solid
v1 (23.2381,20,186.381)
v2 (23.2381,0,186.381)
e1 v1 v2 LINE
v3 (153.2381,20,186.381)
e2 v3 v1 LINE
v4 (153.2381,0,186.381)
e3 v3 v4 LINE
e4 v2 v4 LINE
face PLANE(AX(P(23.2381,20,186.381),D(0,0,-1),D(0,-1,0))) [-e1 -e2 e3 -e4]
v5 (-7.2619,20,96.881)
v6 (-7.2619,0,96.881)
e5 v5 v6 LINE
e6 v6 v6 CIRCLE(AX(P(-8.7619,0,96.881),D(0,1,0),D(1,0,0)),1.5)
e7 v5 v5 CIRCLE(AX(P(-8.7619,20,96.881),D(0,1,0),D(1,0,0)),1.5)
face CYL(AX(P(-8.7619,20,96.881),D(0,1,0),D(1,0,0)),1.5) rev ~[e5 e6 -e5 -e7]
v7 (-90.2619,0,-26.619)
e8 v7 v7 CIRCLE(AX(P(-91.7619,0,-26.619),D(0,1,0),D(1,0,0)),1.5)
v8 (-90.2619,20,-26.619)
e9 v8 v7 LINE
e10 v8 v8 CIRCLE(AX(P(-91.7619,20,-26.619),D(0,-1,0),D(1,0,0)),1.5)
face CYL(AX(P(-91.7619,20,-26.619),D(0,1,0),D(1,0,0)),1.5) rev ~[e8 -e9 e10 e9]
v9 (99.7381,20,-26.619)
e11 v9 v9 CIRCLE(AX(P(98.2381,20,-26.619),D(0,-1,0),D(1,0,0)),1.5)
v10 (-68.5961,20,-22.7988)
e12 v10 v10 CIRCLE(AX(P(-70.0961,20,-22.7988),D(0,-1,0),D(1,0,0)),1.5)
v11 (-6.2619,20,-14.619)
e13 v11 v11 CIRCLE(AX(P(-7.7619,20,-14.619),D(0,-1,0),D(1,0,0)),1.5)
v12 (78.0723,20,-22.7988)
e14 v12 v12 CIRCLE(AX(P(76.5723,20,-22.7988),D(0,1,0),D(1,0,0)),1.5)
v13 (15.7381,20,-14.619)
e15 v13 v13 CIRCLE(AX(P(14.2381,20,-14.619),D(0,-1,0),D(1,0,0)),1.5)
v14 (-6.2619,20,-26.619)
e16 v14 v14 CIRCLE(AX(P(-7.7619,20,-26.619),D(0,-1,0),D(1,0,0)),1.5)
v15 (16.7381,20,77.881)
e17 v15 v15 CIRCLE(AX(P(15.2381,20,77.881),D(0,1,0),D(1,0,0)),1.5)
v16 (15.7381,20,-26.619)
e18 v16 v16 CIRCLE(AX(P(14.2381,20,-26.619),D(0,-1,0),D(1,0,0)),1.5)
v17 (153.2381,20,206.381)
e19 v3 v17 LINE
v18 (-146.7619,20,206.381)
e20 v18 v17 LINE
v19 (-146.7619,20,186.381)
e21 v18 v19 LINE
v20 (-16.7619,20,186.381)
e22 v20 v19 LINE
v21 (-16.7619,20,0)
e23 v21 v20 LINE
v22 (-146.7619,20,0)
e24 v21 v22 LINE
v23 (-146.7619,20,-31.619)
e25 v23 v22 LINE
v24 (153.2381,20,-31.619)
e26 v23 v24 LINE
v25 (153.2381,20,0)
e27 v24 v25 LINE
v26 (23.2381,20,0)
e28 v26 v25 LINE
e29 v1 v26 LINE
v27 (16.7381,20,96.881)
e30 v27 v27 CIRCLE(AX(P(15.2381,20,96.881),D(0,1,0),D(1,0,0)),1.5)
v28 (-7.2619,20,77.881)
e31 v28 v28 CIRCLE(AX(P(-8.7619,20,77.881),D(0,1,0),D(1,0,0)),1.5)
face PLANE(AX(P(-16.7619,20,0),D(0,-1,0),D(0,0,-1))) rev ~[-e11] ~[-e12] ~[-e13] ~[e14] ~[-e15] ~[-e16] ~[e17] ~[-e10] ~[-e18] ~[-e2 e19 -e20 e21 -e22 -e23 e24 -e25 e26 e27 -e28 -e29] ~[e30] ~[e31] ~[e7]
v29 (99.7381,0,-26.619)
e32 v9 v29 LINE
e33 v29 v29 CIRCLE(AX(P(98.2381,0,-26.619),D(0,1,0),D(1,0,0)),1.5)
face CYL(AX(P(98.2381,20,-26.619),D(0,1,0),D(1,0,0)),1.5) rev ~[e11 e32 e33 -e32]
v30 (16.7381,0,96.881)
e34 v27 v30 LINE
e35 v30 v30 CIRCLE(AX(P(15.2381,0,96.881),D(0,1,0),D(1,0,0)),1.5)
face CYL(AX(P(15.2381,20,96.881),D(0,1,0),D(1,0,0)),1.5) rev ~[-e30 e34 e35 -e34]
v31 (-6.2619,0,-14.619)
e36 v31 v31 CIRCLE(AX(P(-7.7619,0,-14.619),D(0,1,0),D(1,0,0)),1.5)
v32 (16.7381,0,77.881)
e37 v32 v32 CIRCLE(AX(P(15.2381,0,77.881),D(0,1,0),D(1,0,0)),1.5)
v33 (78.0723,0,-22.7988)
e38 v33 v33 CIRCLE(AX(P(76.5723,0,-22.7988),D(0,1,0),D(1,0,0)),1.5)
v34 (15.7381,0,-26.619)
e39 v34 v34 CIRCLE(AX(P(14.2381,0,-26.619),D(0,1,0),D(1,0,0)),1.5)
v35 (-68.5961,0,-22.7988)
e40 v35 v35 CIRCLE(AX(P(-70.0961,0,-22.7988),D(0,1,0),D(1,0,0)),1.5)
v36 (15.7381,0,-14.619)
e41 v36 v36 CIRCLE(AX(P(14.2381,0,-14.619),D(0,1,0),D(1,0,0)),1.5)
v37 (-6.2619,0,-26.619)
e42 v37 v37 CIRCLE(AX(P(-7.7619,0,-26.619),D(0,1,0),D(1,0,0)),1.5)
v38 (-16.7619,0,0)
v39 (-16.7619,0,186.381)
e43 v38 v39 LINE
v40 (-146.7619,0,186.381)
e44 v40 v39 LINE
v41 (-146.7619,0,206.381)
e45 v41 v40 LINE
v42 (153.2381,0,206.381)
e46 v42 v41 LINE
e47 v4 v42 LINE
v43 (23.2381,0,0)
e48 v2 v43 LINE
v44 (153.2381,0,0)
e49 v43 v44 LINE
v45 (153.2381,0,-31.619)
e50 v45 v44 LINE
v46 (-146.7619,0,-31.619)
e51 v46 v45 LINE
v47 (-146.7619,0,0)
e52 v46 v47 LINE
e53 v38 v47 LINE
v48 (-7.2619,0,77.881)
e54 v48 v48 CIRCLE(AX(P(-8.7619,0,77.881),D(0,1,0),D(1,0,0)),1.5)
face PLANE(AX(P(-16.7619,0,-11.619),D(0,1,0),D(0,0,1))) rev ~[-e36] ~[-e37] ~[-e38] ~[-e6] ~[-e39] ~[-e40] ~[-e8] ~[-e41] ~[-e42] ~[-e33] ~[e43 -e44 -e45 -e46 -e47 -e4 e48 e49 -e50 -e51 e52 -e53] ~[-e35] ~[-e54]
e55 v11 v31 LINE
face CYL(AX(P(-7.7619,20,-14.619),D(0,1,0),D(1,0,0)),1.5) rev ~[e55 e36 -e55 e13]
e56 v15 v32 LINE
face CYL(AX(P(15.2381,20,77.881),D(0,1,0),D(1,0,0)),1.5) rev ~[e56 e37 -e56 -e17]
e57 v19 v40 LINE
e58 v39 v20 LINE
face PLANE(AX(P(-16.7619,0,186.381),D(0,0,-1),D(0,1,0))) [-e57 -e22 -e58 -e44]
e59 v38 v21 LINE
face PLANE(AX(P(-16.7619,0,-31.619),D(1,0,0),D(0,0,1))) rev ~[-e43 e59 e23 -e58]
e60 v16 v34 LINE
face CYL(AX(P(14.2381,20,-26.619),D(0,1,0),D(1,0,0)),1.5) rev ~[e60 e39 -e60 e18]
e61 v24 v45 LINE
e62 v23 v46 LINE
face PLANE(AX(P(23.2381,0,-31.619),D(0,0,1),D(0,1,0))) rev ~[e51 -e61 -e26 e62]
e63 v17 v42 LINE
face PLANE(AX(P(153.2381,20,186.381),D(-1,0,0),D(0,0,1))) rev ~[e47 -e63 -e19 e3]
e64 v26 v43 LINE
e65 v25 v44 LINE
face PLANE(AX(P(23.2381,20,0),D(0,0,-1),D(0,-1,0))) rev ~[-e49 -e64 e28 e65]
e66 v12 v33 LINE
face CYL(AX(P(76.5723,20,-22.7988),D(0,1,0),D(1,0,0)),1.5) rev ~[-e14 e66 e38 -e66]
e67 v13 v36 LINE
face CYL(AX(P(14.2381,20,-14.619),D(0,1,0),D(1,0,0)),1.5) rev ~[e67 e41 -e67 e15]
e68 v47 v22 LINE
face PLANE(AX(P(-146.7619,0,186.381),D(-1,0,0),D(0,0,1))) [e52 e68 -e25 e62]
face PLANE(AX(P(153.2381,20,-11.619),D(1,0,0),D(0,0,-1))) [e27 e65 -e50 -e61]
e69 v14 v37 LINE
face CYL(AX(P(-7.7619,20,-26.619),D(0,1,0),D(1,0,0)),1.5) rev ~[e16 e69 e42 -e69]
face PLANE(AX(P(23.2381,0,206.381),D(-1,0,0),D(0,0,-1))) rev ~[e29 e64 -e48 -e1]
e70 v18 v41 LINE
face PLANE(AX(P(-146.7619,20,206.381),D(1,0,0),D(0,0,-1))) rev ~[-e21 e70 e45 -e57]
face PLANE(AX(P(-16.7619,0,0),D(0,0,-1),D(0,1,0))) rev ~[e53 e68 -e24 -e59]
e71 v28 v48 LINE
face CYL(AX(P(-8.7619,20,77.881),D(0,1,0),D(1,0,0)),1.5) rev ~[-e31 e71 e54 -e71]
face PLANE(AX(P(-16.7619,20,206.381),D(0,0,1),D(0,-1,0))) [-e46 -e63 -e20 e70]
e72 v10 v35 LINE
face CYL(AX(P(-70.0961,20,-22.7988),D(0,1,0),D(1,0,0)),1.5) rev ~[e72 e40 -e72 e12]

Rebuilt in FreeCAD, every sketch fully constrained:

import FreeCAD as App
import Part
import Sketcher


def add_polygon(sketch, points):
    """Adds a closed chain of lines whose ends are joined by coincident constraints."""
    first, n = sketch.GeometryCount, len(points)
    for a, b in zip(points, points[1:] + points[:1]):
        sketch.addGeometry(Part.LineSegment(App.Vector(*a, 0), App.Vector(*b, 0)), False)
    for i in range(n):
        sketch.addConstraint(Sketcher.Constraint("Coincident", first + i, 2, first + (i + 1) % n, 1))

doc = App.newDocument("Part")
body = doc.addObject("PartDesign::Body", "Body")

sketch1 = body.newObject("Sketcher::SketchObject", "Sketch")
sketch1.AttachmentSupport = (doc.getObject("XZ_Plane"), [""])
sketch1.MapMode = "FlatFace"
add_polygon(sketch1, [(-16.7619, -31.619), (-16.7619, 206.381), (23.2381, 206.381), (23.2381, -31.619)])
sketch1.addConstraint(Sketcher.Constraint("Vertical", 0))
sketch1.addConstraint(Sketcher.Constraint("Horizontal", 1))
sketch1.addConstraint(Sketcher.Constraint("Vertical", 2))
sketch1.addConstraint(Sketcher.Constraint("Horizontal", 3))
sketch1.addConstraint(Sketcher.Constraint("DistanceX", 1, 1, 1, 2, 40.0))
sketch1.addConstraint(Sketcher.Constraint("DistanceY", 0, 1, 0, 2, 238.0))
sketch1.addConstraint(Sketcher.Constraint("DistanceX", 0, 2, -1, 1, 16.762))
sketch1.addConstraint(Sketcher.Constraint("DistanceY", -1, 1, 0, 2, 206.381))
pad1 = body.newObject("PartDesign::Pad", "Pad")
pad1.Profile = sketch1
pad1.Length = 20
pad1.Reversed = True

sketch2 = body.newObject("Sketcher::SketchObject", "Sketch001")
sketch2.AttachmentSupport = (doc.getObject("YZ_Plane"), [""])
sketch2.MapMode = "FlatFace"
sketch2.AttachmentOffset = App.Placement(App.Vector(0, 0, 23.2381), App.Rotation())
add_polygon(sketch2, [(0, 186.381), (20, 186.381), (20, 206.381), (0, 206.381)])
sketch2.addConstraint(Sketcher.Constraint("Horizontal", 0))
sketch2.addConstraint(Sketcher.Constraint("Vertical", 1))
sketch2.addConstraint(Sketcher.Constraint("Horizontal", 2))
sketch2.addConstraint(Sketcher.Constraint("Vertical", 3))
sketch2.addConstraint(Sketcher.Constraint("PointOnObject", 2, 2, -2))
sketch2.addConstraint(Sketcher.Constraint("Equal", 2, 1))
sketch2.addConstraint(Sketcher.Constraint("DistanceX", 0, 1, 0, 2, 20.0))
sketch2.addConstraint(Sketcher.Constraint("DistanceY", -1, 1, 0, 2, 186.381))
pad2 = body.newObject("PartDesign::Pad", "Pad001")
pad2.Profile = sketch2
pad2.Length = 20

sketch3 = body.newObject("Sketcher::SketchObject", "Sketch002")
sketch3.AttachmentSupport = (doc.getObject("YZ_Plane"), [""])
sketch3.MapMode = "FlatFace"
sketch3.AttachmentOffset = App.Placement(App.Vector(0, 0, -16.7619), App.Rotation())
add_polygon(sketch3, [(20, 186.381), (0, 186.381), (0, 206.381), (20, 206.381)])
sketch3.addConstraint(Sketcher.Constraint("Horizontal", 0))
sketch3.addConstraint(Sketcher.Constraint("Vertical", 1))
sketch3.addConstraint(Sketcher.Constraint("Horizontal", 2))
sketch3.addConstraint(Sketcher.Constraint("Vertical", 3))
sketch3.addConstraint(Sketcher.Constraint("PointOnObject", 0, 2, -2))
sketch3.addConstraint(Sketcher.Constraint("Equal", 2, 1))
sketch3.addConstraint(Sketcher.Constraint("DistanceX", 0, 2, 0, 1, 20.0))
sketch3.addConstraint(Sketcher.Constraint("DistanceY", -1, 1, 0, 2, 186.381))
pad3 = body.newObject("PartDesign::Pad", "Pad002")
pad3.Profile = sketch3
pad3.Length = 20
pad3.Reversed = True

sketch4 = body.newObject("Sketcher::SketchObject", "Sketch003")
sketch4.AttachmentSupport = (doc.getObject("YZ_Plane"), [""])
sketch4.MapMode = "FlatFace"
sketch4.AttachmentOffset = App.Placement(App.Vector(0, 0, -16.7619), App.Rotation())
add_polygon(sketch4, [(20, -31.619), (0, -31.619), (0, -11.619), (20, -11.619)])
sketch4.addConstraint(Sketcher.Constraint("Horizontal", 0))
sketch4.addConstraint(Sketcher.Constraint("Vertical", 1))
sketch4.addConstraint(Sketcher.Constraint("Horizontal", 2))
sketch4.addConstraint(Sketcher.Constraint("Vertical", 3))
sketch4.addConstraint(Sketcher.Constraint("PointOnObject", 0, 2, -2))
sketch4.addConstraint(Sketcher.Constraint("Equal", 2, 1))
sketch4.addConstraint(Sketcher.Constraint("DistanceX", 0, 2, 0, 1, 20.0))
sketch4.addConstraint(Sketcher.Constraint("DistanceY", 0, 2, -1, 1, 31.619))
pad4 = body.newObject("PartDesign::Pad", "Pad003")
pad4.Profile = sketch4
pad4.Length = 20
pad4.Reversed = True

sketch5 = body.newObject("Sketcher::SketchObject", "Sketch004")
sketch5.AttachmentSupport = (doc.getObject("YZ_Plane"), [""])
sketch5.MapMode = "FlatFace"
sketch5.AttachmentOffset = App.Placement(App.Vector(0, 0, 23.2381), App.Rotation())
add_polygon(sketch5, [(0, -11.619), (0, -31.619), (20, -31.619), (20, -11.619)])
sketch5.addConstraint(Sketcher.Constraint("Vertical", 0))
sketch5.addConstraint(Sketcher.Constraint("Horizontal", 1))
sketch5.addConstraint(Sketcher.Constraint("Vertical", 2))
sketch5.addConstraint(Sketcher.Constraint("Horizontal", 3))
sketch5.addConstraint(Sketcher.Constraint("PointOnObject", 0, 2, -2))
sketch5.addConstraint(Sketcher.Constraint("Equal", 3, 0))
sketch5.addConstraint(Sketcher.Constraint("DistanceX", 1, 1, 1, 2, 20.0))
sketch5.addConstraint(Sketcher.Constraint("DistanceY", 0, 2, -1, 1, 31.619))
pad5 = body.newObject("PartDesign::Pad", "Pad004")
pad5.Profile = sketch5
pad5.Length = 20

sketch6 = body.newObject("Sketcher::SketchObject", "Sketch005")
sketch6.AttachmentSupport = (doc.getObject("XZ_Plane"), [""])
sketch6.MapMode = "FlatFace"
sketch6.AttachmentOffset = App.Placement(App.Vector(0, 0, -20), App.Rotation())
sketch6.addGeometry(Part.Circle(App.Vector(-8.7619, 96.881, 0), App.Vector(0, 0, 1), 1.5), False)
sketch6.addGeometry(Part.Circle(App.Vector(-8.7619, 77.881, 0), App.Vector(0, 0, 1), 1.5), False)
sketch6.addGeometry(Part.Circle(App.Vector(15.2381, 96.881, 0), App.Vector(0, 0, 1), 1.5), False)
sketch6.addGeometry(Part.Circle(App.Vector(15.2381, 77.881, 0), App.Vector(0, 0, 1), 1.5), False)
sketch6.addConstraint(Sketcher.Constraint("Equal", 0, 1))
sketch6.addConstraint(Sketcher.Constraint("Equal", 1, 2))
sketch6.addConstraint(Sketcher.Constraint("Equal", 2, 3))
sketch6.addConstraint(Sketcher.Constraint("Horizontal", 0, 3, 2, 3))
sketch6.addConstraint(Sketcher.Constraint("Horizontal", 1, 3, 3, 3))
sketch6.addConstraint(Sketcher.Constraint("Vertical", 0, 3, 1, 3))
sketch6.addConstraint(Sketcher.Constraint("Vertical", 2, 3, 3, 3))
sketch6.addConstraint(Sketcher.Constraint("Diameter", 0, 3.0))
sketch6.addConstraint(Sketcher.Constraint("DistanceY", 1, 3, 0, 3, 19.0))
sketch6.addConstraint(Sketcher.Constraint("DistanceX", 0, 3, 2, 3, 24.0))
sketch6.addConstraint(Sketcher.Constraint("DistanceX", 0, 3, -1, 1, 8.762))
sketch6.addConstraint(Sketcher.Constraint("DistanceY", -1, 1, 0, 3, 96.881))
pocket1 = body.newObject("PartDesign::Pocket", "Pocket")
pocket1.Profile = sketch6
pocket1.Type = "ThroughAll"
pocket1.Reversed = True

sketch7 = body.newObject("Sketcher::SketchObject", "Sketch006")
sketch7.AttachmentSupport = (doc.getObject("XZ_Plane"), [""])
sketch7.MapMode = "FlatFace"
sketch7.AttachmentOffset = App.Placement(App.Vector(0, 0, -20), App.Rotation())
add_polygon(sketch7, [(153.2381, 186.381), (-146.7619, 186.381), (-146.7619, 206.381), (153.2381, 206.381)])
add_polygon(sketch7, [(-146.7619, -31.619), (-146.7619, -11.619), (153.2381, -11.619), (153.2381, -31.619)])
sketch7.addConstraint(Sketcher.Constraint("Horizontal", 0))
sketch7.addConstraint(Sketcher.Constraint("Vertical", 1))
sketch7.addConstraint(Sketcher.Constraint("Horizontal", 2))
sketch7.addConstraint(Sketcher.Constraint("Vertical", 3))
sketch7.addConstraint(Sketcher.Constraint("Vertical", 4))
sketch7.addConstraint(Sketcher.Constraint("Horizontal", 5))
sketch7.addConstraint(Sketcher.Constraint("Vertical", 6))
sketch7.addConstraint(Sketcher.Constraint("Horizontal", 7))
sketch7.addConstraint(Sketcher.Constraint("Vertical", 1, 2, 4, 2))
sketch7.addConstraint(Sketcher.Constraint("Vertical", 3, 2, 5, 2))
sketch7.addConstraint(Sketcher.Constraint("Equal", 3, 4))
sketch7.addConstraint(Sketcher.Constraint("DistanceX", 0, 2, 0, 1, 300.0))
sketch7.addConstraint(Sketcher.Constraint("DistanceY", 1, 1, 1, 2, 20.0))
sketch7.addConstraint(Sketcher.Constraint("DistanceY", 4, 2, 0, 2, 198.0))
sketch7.addConstraint(Sketcher.Constraint("DistanceX", 0, 2, -1, 1, 146.762))
sketch7.addConstraint(Sketcher.Constraint("DistanceY", -1, 1, 0, 2, 186.381))
pad6 = body.newObject("PartDesign::Pad", "Pad005")
pad6.Profile = sketch7
pad6.Length = 20

sketch8 = body.newObject("Sketcher::SketchObject", "Sketch007")
sketch8.AttachmentSupport = (doc.getObject("XZ_Plane"), [""])
sketch8.MapMode = "FlatFace"
sketch8.AttachmentOffset = App.Placement(App.Vector(0, 0, -20), App.Rotation())
sketch8.addGeometry(Part.Circle(App.Vector(14.2381, -14.619, 0), App.Vector(0, 0, 1), 1.5), False)
sketch8.addGeometry(Part.Circle(App.Vector(14.2381, -26.619, 0), App.Vector(0, 0, 1), 1.5), False)
sketch8.addGeometry(Part.Circle(App.Vector(-7.7619, -14.619, 0), App.Vector(0, 0, 1), 1.5), False)
sketch8.addGeometry(Part.Circle(App.Vector(-7.7619, -26.619, 0), App.Vector(0, 0, 1), 1.5), False)
sketch8.addConstraint(Sketcher.Constraint("Equal", 0, 1))
sketch8.addConstraint(Sketcher.Constraint("Equal", 1, 2))
sketch8.addConstraint(Sketcher.Constraint("Equal", 2, 3))
sketch8.addConstraint(Sketcher.Constraint("Horizontal", 0, 3, 2, 3))
sketch8.addConstraint(Sketcher.Constraint("Horizontal", 1, 3, 3, 3))
sketch8.addConstraint(Sketcher.Constraint("Vertical", 0, 3, 1, 3))
sketch8.addConstraint(Sketcher.Constraint("Vertical", 2, 3, 3, 3))
sketch8.addConstraint(Sketcher.Constraint("Diameter", 0, 3.0))
sketch8.addConstraint(Sketcher.Constraint("DistanceY", 1, 3, 0, 3, 12.0))
sketch8.addConstraint(Sketcher.Constraint("DistanceX", 2, 3, 0, 3, 22.0))
sketch8.addConstraint(Sketcher.Constraint("DistanceX", -1, 1, 0, 3, 14.238))
sketch8.addConstraint(Sketcher.Constraint("DistanceY", 0, 3, -1, 1, 14.619))
pocket2 = body.newObject("PartDesign::Pocket", "Pocket001")
pocket2.Profile = sketch8
pocket2.Type = "ThroughAll"
pocket2.Reversed = True

sketch9 = body.newObject("Sketcher::SketchObject", "Sketch008")
sketch9.AttachmentSupport = (doc.getObject("XZ_Plane"), [""])
sketch9.MapMode = "FlatFace"
sketch9.AttachmentOffset = App.Placement(App.Vector(0, 0, -20), App.Rotation())
sketch9.addGeometry(Part.Circle(App.Vector(-91.7619, -26.619, 0), App.Vector(0, 0, 1), 1.5), False)
sketch9.addGeometry(Part.Circle(App.Vector(-70.0961, -22.7988, 0), App.Vector(0, 0, 1), 1.5), False)
sketch9.addGeometry(Part.Circle(App.Vector(98.2381, -26.619, 0), App.Vector(0, 0, 1), 1.5), False)
sketch9.addGeometry(Part.Circle(App.Vector(76.5723, -22.7988, 0), App.Vector(0, 0, 1), 1.5), False)
sketch9.addConstraint(Sketcher.Constraint("Equal", 0, 1))
sketch9.addConstraint(Sketcher.Constraint("Equal", 1, 2))
sketch9.addConstraint(Sketcher.Constraint("Equal", 2, 3))
sketch9.addConstraint(Sketcher.Constraint("Horizontal", 0, 3, 2, 3))
sketch9.addConstraint(Sketcher.Constraint("Horizontal", 1, 3, 3, 3))
sketch9.addConstraint(Sketcher.Constraint("Diameter", 0, 3.0))
sketch9.addConstraint(Sketcher.Constraint("DistanceX", 0, 3, 2, 3, 190.0))
sketch9.addConstraint(Sketcher.Constraint("DistanceX", 0, 3, -1, 1, 91.762))
sketch9.addConstraint(Sketcher.Constraint("DistanceY", 0, 3, -1, 1, 26.619))
sketch9.addConstraint(Sketcher.Constraint("DistanceX", 1, 3, -1, 1, 70.096))
sketch9.addConstraint(Sketcher.Constraint("DistanceY", 1, 3, -1, 1, 22.7988))
sketch9.addConstraint(Sketcher.Constraint("DistanceX", -1, 1, 3, 3, 76.5723))
pocket3 = body.newObject("PartDesign::Pocket", "Pocket002")
pocket3.Profile = sketch9
pocket3.Type = "ThroughAll"
pocket3.Reversed = True

sketch10 = body.newObject("Sketcher::SketchObject", "Sketch009")
sketch10.AttachmentSupport = (doc.getObject("YZ_Plane"), [""])
sketch10.MapMode = "FlatFace"
sketch10.AttachmentOffset = App.Placement(App.Vector(0, 0, 23.2381), App.Rotation())
add_polygon(sketch10, [(20, -11.619), (20, 0), (0, 0), (0, -11.619)])
sketch10.addConstraint(Sketcher.Constraint("Vertical", 0))
sketch10.addConstraint(Sketcher.Constraint("Horizontal", 1))
sketch10.addConstraint(Sketcher.Constraint("Vertical", 2))
sketch10.addConstraint(Sketcher.Constraint("Horizontal", 3))
sketch10.addConstraint(Sketcher.Constraint("Coincident", 1, 2, -1, 1))
sketch10.addConstraint(Sketcher.Constraint("DistanceX", 1, 2, 1, 1, 20.0))
sketch10.addConstraint(Sketcher.Constraint("DistanceY", 0, 1, 0, 2, 11.619))
pad7 = body.newObject("PartDesign::Pad", "Pad006")
pad7.Profile = sketch10
pad7.Type = "TwoLengths"
pad7.Length = 130
pad7.Length2 = 5

sketch11 = body.newObject("Sketcher::SketchObject", "Sketch010")
sketch11.AttachmentSupport = (doc.getObject("YZ_Plane"), [""])
sketch11.MapMode = "FlatFace"
sketch11.AttachmentOffset = App.Placement(App.Vector(0, 0, -16.7619), App.Rotation())
add_polygon(sketch11, [(20, 0), (20, -11.619), (0, -11.619), (0, 0)])
sketch11.addConstraint(Sketcher.Constraint("Vertical", 0))
sketch11.addConstraint(Sketcher.Constraint("Horizontal", 1))
sketch11.addConstraint(Sketcher.Constraint("Vertical", 2))
sketch11.addConstraint(Sketcher.Constraint("Horizontal", 3))
sketch11.addConstraint(Sketcher.Constraint("Coincident", 2, 2, -1, 1))
sketch11.addConstraint(Sketcher.Constraint("DistanceX", 1, 2, 1, 1, 20.0))
sketch11.addConstraint(Sketcher.Constraint("DistanceY", 0, 2, 0, 1, 11.619))
pad8 = body.newObject("PartDesign::Pad", "Pad007")
pad8.Profile = sketch11
pad8.Length = 130
pad8.Reversed = True

doc.recompute()
